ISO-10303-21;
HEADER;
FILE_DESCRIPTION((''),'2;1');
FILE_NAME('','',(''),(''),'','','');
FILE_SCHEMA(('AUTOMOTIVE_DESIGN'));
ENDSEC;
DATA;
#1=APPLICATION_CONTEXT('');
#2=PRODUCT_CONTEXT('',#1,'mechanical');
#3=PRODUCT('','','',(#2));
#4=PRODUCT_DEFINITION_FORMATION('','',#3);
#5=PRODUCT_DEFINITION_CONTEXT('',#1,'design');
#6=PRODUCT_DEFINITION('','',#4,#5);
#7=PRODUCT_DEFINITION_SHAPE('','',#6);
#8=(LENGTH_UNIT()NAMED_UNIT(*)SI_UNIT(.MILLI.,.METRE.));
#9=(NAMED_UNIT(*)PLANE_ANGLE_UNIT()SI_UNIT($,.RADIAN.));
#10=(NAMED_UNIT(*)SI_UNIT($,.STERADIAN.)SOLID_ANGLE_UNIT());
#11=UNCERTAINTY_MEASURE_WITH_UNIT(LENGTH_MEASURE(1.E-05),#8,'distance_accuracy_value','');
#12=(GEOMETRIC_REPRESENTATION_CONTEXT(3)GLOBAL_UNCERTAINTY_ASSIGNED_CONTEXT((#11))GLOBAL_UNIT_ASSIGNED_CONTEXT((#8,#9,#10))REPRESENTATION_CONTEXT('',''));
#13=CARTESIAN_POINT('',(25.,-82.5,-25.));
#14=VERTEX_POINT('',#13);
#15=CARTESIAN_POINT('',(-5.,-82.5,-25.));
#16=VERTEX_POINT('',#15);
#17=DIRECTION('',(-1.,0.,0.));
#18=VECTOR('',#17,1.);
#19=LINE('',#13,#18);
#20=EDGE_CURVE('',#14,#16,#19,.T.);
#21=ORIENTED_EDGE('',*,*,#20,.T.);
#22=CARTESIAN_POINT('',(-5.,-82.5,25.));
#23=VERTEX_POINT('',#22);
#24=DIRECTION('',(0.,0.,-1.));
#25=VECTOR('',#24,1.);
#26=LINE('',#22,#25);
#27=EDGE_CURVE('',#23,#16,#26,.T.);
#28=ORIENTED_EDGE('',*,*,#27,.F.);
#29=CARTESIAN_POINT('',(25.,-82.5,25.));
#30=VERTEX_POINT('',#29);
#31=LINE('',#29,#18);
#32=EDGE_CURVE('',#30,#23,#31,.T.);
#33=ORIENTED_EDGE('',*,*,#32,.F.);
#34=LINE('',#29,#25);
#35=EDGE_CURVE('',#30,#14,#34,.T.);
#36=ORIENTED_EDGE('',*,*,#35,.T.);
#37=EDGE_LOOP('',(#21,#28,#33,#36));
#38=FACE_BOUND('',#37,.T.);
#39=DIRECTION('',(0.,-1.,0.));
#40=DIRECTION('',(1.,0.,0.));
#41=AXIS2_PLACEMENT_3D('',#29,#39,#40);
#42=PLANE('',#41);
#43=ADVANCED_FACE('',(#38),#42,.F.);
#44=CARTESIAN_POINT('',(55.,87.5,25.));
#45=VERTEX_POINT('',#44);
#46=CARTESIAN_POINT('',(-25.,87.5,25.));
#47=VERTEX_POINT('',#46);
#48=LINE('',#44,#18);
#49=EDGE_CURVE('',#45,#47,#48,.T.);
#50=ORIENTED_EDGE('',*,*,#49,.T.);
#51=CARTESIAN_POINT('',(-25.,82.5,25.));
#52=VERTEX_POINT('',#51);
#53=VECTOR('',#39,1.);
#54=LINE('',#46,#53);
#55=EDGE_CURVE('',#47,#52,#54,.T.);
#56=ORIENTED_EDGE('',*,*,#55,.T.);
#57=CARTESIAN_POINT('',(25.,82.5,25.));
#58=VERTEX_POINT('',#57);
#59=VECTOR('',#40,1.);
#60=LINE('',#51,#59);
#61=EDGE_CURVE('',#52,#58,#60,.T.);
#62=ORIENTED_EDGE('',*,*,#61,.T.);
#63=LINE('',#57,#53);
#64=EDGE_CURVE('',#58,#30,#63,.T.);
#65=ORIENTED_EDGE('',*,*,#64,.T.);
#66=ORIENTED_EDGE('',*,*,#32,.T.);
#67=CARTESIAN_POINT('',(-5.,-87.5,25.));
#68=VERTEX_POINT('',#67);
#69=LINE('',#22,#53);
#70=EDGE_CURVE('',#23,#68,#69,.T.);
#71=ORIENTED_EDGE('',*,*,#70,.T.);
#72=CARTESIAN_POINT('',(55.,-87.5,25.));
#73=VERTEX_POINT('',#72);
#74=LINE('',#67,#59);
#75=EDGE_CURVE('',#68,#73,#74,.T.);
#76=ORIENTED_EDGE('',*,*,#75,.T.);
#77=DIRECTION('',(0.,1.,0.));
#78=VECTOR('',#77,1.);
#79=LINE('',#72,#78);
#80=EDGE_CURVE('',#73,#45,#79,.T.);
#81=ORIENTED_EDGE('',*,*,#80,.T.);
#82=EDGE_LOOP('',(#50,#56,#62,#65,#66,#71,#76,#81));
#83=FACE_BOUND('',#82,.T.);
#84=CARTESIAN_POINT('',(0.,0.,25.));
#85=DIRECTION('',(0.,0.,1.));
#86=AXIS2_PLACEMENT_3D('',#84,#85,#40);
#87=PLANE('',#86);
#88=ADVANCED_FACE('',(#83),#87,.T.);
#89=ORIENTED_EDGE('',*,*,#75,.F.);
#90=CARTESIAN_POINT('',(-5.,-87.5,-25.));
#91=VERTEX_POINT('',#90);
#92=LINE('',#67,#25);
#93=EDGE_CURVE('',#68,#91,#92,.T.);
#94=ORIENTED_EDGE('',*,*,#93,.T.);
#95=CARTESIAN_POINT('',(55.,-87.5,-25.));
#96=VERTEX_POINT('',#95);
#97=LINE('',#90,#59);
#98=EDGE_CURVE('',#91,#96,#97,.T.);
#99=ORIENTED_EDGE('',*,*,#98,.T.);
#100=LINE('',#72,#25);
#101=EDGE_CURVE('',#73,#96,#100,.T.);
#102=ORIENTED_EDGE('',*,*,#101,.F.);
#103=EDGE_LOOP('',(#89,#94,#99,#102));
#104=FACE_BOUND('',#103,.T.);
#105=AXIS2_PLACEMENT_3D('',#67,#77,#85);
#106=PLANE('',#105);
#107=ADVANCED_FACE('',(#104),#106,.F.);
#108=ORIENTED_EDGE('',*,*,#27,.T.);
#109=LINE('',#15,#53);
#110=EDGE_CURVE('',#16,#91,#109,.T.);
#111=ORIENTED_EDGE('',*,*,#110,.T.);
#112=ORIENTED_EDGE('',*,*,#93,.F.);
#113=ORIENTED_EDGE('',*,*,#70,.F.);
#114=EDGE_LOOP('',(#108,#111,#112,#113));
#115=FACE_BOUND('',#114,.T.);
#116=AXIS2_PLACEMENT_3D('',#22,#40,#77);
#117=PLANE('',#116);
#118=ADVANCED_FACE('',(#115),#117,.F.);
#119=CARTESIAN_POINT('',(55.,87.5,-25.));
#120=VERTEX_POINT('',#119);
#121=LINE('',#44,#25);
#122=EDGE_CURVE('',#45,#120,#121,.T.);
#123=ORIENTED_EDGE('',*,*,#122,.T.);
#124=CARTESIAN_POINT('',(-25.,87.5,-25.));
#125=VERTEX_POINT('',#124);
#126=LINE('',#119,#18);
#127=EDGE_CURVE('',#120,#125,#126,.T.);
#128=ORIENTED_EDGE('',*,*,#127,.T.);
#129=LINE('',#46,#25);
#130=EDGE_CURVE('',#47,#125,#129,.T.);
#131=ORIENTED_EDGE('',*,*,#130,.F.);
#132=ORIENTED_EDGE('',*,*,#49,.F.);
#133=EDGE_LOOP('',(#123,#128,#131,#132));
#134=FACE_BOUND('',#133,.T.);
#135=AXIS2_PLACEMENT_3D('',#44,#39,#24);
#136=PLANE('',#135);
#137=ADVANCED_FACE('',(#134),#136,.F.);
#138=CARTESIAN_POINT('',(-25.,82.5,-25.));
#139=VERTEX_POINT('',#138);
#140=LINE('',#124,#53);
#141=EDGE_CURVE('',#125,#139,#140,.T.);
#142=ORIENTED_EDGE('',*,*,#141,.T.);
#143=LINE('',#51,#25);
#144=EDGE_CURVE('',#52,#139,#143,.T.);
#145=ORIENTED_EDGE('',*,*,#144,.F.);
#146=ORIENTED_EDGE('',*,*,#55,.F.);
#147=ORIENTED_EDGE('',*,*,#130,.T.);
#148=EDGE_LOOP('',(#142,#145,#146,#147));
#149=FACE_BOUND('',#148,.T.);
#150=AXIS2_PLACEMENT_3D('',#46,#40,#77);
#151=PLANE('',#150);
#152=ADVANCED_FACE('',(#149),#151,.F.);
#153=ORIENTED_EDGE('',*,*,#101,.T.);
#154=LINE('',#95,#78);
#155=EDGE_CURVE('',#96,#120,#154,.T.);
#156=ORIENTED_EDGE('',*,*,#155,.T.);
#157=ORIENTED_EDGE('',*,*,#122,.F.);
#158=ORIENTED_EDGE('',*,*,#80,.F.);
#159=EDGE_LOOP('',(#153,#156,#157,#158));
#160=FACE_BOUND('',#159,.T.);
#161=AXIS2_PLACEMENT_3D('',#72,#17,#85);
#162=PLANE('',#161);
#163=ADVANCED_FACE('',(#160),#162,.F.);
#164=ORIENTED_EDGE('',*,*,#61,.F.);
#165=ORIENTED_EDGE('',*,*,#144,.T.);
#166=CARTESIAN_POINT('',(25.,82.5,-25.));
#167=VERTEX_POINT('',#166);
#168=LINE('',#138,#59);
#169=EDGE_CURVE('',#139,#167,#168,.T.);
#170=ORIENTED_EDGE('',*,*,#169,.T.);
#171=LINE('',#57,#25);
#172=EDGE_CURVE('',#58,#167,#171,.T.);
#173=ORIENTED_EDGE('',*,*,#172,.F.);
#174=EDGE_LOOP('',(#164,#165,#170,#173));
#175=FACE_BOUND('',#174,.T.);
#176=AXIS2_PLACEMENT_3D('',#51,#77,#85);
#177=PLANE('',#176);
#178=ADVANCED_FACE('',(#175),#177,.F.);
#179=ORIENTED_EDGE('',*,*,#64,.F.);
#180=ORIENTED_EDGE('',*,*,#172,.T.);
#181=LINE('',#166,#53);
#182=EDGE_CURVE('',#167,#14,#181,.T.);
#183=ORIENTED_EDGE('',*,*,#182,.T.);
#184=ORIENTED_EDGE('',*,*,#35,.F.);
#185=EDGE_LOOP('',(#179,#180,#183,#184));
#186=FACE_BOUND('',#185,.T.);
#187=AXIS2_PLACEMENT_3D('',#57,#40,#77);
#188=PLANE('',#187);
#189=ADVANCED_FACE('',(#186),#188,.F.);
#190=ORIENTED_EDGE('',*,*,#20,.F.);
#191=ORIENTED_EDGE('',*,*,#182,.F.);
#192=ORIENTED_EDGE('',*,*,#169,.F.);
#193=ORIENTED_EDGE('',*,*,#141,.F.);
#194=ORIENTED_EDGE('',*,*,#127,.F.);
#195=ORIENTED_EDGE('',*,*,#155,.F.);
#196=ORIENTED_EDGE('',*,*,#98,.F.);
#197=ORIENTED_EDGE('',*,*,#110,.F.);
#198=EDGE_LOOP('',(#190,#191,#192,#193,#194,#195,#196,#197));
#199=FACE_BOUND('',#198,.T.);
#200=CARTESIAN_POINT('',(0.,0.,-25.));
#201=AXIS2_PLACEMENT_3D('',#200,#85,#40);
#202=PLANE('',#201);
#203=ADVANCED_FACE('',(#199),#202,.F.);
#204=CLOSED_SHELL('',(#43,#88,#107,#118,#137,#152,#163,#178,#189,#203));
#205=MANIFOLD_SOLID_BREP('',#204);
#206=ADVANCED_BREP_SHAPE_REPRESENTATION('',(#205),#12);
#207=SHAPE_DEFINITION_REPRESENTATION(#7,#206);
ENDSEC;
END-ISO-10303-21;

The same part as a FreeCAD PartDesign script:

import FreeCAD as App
import Part
import Sketcher


def add_polygon(sketch, points):
    """Adds a closed chain of lines whose ends are joined by coincident constraints."""
    first, n = sketch.GeometryCount, len(points)
    for a, b in zip(points, points[1:] + points[:1]):
        sketch.addGeometry(Part.LineSegment(App.Vector(*a, 0), App.Vector(*b, 0)), False)
    for i in range(n):
        sketch.addConstraint(Sketcher.Constraint("Coincident", first + i, 2, first + (i + 1) % n, 1))

doc = App.newDocument("Part")
params = doc.addObject("Spreadsheet::Sheet", "Params")
for row, (alias, value) in enumerate([
    ("sketch1_width", "50 mm"),
    ("sketch1_width2", "30 mm"),
    ("sketch1_width3", "60 mm"),
    ("sketch1_height", "5 mm"),
    ("sketch1_height2", "165 mm"),
    ("pad1_length", "50 mm"),
], start=1):
    params.set(f"A{row}", alias)
    params.set(f"B{row}", "=" + value)
    params.setAlias(f"B{row}", alias)

body = doc.addObject("PartDesign::Body", "Body")

# Sketch on XY plane
sketch1 = body.newObject("Sketcher::SketchObject", "Sketch")
sketch1.AttachmentSupport = (doc.getObject("XY_Plane"), [""])
sketch1.MapMode = "FlatFace"
add_polygon(sketch1, [(-25, 87.5), (-25, 82.5), (25, 82.5), (25, -82.5), (-5, -82.5), (-5, -87.5), (55, -87.5), (55, 87.5)])  # lines 0-7
sketch1.addConstraint(Sketcher.Constraint("Vertical", 0))
sketch1.addConstraint(Sketcher.Constraint("Horizontal", 1))
sketch1.addConstraint(Sketcher.Constraint("Vertical", 2))
sketch1.addConstraint(Sketcher.Constraint("Horizontal", 3))
sketch1.addConstraint(Sketcher.Constraint("Vertical", 4))
sketch1.addConstraint(Sketcher.Constraint("Horizontal", 5))
sketch1.addConstraint(Sketcher.Constraint("Vertical", 6))
sketch1.addConstraint(Sketcher.Constraint("Horizontal", 7))
sketch1.addConstraint(Sketcher.Constraint("Symmetric", 0, 2, 2, 2, -1, 1))
sketch1.addConstraint(Sketcher.Constraint("Equal", 0, 4))
sketch1.addConstraint(Sketcher.Constraint("DistanceX", 1, 1, 1, 2, 50.0))
sketch1.addConstraint(Sketcher.Constraint("DistanceX", 3, 2, 3, 1, 30.0))
sketch1.addConstraint(Sketcher.Constraint("DistanceX", 5, 1, 5, 2, 60.0))
sketch1.addConstraint(Sketcher.Constraint("DistanceY", 0, 2, 0, 1, 5.0))
sketch1.addConstraint(Sketcher.Constraint("DistanceY", 2, 2, 2, 1, 165.0))
sketch1.setExpression("Constraints[18]", "Params.sketch1_width")
sketch1.setExpression("Constraints[19]", "Params.sketch1_width2")
sketch1.setExpression("Constraints[20]", "Params.sketch1_width3")
sketch1.setExpression("Constraints[21]", "Params.sketch1_height")
sketch1.setExpression("Constraints[22]", "Params.sketch1_height2")
pad1 = body.newObject("PartDesign::Pad", "Pad")
pad1.Profile = sketch1
pad1.setExpression("Length", "Params.pad1_length")
pad1.Midplane = True

doc.recompute()
